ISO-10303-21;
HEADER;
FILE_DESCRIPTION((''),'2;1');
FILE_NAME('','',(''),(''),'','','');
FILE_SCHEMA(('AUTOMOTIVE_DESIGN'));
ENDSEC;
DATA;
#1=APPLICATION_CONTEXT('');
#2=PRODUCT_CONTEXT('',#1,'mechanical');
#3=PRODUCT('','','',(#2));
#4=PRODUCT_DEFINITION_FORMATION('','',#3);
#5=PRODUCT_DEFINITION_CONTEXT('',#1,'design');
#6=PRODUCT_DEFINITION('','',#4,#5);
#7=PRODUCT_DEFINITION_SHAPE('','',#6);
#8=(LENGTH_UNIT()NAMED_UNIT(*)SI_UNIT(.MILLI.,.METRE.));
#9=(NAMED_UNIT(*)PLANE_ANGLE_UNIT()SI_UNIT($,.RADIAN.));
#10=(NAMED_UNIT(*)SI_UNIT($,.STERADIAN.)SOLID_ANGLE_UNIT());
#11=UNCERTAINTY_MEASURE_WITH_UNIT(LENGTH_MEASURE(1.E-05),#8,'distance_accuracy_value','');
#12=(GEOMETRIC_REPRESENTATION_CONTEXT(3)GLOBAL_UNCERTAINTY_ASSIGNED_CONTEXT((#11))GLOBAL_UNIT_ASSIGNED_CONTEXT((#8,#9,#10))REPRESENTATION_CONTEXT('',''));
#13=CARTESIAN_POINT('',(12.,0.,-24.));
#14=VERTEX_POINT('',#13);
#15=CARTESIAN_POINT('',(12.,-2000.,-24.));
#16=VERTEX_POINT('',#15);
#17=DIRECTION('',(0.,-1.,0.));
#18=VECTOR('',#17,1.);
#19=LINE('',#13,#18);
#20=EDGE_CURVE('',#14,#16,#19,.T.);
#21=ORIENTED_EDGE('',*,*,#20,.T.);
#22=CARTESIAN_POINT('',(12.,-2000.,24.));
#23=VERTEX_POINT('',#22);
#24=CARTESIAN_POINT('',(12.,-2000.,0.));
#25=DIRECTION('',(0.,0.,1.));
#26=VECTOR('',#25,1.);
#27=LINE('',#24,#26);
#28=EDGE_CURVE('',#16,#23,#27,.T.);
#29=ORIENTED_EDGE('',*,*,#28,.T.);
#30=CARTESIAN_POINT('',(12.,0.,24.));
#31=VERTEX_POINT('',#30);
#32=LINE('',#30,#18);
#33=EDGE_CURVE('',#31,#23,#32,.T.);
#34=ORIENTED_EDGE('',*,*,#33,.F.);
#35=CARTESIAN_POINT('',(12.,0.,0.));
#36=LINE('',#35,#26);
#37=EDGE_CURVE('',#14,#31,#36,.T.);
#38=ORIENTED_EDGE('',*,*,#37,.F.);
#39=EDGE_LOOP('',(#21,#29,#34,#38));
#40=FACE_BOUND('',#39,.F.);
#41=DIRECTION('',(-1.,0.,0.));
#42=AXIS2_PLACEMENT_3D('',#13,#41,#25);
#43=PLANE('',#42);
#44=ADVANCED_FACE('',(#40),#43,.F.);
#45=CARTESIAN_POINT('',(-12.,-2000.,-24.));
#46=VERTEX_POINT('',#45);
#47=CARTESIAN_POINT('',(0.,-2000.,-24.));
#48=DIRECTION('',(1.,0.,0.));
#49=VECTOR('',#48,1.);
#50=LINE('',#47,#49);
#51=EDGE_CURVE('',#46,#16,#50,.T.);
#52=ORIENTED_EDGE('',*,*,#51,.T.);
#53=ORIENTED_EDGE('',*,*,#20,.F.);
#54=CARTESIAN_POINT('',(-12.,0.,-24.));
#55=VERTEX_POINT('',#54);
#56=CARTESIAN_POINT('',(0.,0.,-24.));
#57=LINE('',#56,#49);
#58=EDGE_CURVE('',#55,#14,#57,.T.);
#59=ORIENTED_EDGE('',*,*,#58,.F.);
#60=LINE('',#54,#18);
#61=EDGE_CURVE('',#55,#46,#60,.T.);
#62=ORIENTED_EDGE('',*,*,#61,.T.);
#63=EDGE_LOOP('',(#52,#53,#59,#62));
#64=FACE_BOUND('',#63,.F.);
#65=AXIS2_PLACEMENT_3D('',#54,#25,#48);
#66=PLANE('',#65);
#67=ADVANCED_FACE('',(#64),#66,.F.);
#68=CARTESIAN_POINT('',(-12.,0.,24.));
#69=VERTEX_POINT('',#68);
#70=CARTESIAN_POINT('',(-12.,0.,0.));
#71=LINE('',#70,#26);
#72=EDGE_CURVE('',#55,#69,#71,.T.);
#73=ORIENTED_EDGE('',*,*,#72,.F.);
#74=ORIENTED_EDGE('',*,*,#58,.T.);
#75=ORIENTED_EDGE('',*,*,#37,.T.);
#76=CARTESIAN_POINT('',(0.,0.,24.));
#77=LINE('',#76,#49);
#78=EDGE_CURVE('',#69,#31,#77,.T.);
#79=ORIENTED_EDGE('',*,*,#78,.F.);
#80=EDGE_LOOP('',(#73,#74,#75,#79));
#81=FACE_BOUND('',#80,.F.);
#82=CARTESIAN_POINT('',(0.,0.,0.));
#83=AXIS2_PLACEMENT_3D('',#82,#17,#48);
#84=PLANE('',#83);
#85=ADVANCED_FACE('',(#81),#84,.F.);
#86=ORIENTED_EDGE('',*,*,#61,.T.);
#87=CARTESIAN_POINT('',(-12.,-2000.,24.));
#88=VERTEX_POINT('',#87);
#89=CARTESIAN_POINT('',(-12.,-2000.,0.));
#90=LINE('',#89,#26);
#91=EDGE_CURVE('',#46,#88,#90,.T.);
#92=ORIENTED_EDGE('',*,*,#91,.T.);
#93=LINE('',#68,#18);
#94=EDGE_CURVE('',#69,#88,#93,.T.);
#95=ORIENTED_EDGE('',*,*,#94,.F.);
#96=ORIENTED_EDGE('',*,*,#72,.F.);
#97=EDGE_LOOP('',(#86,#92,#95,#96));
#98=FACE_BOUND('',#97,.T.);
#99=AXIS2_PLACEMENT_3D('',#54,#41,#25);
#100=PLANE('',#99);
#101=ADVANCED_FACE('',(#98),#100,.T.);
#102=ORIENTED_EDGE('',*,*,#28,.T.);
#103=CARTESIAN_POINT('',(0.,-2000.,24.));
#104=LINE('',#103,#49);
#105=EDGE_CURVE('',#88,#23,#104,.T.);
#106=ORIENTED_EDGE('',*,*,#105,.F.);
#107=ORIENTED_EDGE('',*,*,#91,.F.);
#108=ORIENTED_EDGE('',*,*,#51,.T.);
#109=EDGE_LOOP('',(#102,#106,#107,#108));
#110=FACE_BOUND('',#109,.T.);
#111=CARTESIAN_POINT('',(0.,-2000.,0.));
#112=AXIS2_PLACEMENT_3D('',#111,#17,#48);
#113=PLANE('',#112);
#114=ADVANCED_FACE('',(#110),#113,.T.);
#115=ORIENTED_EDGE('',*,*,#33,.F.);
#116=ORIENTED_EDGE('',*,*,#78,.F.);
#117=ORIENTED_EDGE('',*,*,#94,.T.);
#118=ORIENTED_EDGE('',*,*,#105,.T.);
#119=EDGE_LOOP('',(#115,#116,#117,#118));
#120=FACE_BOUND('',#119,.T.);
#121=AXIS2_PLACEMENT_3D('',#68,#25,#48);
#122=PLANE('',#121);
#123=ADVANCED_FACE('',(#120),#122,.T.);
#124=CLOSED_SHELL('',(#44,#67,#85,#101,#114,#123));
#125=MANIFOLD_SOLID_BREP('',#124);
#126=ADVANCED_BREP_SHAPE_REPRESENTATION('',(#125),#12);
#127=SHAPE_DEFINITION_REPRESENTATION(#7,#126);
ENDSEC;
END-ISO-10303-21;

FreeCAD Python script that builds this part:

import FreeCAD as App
import Part
import Sketcher
from FreeCAD import Vector
Q = App.Units.Quantity

doc = App.newDocument("Part")
body = doc.addObject("PartDesign::Body", "Body")

# Sketch on XZ plane
sketch1 = doc.addObject("Sketcher::SketchObject", "Sketch")
body.addObject(sketch1)
sketch1.AttachmentSupport = (doc.XZ_Plane, [""])
sketch1.MapMode = "FlatFace"
sketch1.addGeometry([
    Part.LineSegment(Vector(-12, 24, 0), Vector(-12, -24, 0)),
    Part.LineSegment(Vector(-12, -24, 0), Vector(12, -24, 0)),
    Part.LineSegment(Vector(12, -24, 0), Vector(12, 24, 0)),
    Part.LineSegment(Vector(12, 24, 0), Vector(-12, 24, 0)),
], False)
sketch1.addConstraint([
    Sketcher.Constraint("Coincident", 0, 2, 1, 1),
    Sketcher.Constraint("Coincident", 1, 2, 2, 1),
    Sketcher.Constraint("Coincident", 2, 2, 3, 1),
    Sketcher.Constraint("Coincident", 3, 2, 0, 1),
    Sketcher.Constraint("Vertical", 0),
    Sketcher.Constraint("Horizontal", 1),
    Sketcher.Constraint("Vertical", 2),
    Sketcher.Constraint("Horizontal", 3),
    Sketcher.Constraint("Symmetric", 0, 2, 2, 2, -1, 1),
    Sketcher.Constraint("DistanceX", 1, 1, 1, 2, Q("24 mm")),
    Sketcher.Constraint("DistanceY", 0, 2, 0, 1, Q("48 mm")),
])
pad1 = doc.addObject("PartDesign::Pad", "Pad")
body.addObject(pad1)
pad1.Profile = sketch1
pad1.Length = 2000

doc.recompute()
